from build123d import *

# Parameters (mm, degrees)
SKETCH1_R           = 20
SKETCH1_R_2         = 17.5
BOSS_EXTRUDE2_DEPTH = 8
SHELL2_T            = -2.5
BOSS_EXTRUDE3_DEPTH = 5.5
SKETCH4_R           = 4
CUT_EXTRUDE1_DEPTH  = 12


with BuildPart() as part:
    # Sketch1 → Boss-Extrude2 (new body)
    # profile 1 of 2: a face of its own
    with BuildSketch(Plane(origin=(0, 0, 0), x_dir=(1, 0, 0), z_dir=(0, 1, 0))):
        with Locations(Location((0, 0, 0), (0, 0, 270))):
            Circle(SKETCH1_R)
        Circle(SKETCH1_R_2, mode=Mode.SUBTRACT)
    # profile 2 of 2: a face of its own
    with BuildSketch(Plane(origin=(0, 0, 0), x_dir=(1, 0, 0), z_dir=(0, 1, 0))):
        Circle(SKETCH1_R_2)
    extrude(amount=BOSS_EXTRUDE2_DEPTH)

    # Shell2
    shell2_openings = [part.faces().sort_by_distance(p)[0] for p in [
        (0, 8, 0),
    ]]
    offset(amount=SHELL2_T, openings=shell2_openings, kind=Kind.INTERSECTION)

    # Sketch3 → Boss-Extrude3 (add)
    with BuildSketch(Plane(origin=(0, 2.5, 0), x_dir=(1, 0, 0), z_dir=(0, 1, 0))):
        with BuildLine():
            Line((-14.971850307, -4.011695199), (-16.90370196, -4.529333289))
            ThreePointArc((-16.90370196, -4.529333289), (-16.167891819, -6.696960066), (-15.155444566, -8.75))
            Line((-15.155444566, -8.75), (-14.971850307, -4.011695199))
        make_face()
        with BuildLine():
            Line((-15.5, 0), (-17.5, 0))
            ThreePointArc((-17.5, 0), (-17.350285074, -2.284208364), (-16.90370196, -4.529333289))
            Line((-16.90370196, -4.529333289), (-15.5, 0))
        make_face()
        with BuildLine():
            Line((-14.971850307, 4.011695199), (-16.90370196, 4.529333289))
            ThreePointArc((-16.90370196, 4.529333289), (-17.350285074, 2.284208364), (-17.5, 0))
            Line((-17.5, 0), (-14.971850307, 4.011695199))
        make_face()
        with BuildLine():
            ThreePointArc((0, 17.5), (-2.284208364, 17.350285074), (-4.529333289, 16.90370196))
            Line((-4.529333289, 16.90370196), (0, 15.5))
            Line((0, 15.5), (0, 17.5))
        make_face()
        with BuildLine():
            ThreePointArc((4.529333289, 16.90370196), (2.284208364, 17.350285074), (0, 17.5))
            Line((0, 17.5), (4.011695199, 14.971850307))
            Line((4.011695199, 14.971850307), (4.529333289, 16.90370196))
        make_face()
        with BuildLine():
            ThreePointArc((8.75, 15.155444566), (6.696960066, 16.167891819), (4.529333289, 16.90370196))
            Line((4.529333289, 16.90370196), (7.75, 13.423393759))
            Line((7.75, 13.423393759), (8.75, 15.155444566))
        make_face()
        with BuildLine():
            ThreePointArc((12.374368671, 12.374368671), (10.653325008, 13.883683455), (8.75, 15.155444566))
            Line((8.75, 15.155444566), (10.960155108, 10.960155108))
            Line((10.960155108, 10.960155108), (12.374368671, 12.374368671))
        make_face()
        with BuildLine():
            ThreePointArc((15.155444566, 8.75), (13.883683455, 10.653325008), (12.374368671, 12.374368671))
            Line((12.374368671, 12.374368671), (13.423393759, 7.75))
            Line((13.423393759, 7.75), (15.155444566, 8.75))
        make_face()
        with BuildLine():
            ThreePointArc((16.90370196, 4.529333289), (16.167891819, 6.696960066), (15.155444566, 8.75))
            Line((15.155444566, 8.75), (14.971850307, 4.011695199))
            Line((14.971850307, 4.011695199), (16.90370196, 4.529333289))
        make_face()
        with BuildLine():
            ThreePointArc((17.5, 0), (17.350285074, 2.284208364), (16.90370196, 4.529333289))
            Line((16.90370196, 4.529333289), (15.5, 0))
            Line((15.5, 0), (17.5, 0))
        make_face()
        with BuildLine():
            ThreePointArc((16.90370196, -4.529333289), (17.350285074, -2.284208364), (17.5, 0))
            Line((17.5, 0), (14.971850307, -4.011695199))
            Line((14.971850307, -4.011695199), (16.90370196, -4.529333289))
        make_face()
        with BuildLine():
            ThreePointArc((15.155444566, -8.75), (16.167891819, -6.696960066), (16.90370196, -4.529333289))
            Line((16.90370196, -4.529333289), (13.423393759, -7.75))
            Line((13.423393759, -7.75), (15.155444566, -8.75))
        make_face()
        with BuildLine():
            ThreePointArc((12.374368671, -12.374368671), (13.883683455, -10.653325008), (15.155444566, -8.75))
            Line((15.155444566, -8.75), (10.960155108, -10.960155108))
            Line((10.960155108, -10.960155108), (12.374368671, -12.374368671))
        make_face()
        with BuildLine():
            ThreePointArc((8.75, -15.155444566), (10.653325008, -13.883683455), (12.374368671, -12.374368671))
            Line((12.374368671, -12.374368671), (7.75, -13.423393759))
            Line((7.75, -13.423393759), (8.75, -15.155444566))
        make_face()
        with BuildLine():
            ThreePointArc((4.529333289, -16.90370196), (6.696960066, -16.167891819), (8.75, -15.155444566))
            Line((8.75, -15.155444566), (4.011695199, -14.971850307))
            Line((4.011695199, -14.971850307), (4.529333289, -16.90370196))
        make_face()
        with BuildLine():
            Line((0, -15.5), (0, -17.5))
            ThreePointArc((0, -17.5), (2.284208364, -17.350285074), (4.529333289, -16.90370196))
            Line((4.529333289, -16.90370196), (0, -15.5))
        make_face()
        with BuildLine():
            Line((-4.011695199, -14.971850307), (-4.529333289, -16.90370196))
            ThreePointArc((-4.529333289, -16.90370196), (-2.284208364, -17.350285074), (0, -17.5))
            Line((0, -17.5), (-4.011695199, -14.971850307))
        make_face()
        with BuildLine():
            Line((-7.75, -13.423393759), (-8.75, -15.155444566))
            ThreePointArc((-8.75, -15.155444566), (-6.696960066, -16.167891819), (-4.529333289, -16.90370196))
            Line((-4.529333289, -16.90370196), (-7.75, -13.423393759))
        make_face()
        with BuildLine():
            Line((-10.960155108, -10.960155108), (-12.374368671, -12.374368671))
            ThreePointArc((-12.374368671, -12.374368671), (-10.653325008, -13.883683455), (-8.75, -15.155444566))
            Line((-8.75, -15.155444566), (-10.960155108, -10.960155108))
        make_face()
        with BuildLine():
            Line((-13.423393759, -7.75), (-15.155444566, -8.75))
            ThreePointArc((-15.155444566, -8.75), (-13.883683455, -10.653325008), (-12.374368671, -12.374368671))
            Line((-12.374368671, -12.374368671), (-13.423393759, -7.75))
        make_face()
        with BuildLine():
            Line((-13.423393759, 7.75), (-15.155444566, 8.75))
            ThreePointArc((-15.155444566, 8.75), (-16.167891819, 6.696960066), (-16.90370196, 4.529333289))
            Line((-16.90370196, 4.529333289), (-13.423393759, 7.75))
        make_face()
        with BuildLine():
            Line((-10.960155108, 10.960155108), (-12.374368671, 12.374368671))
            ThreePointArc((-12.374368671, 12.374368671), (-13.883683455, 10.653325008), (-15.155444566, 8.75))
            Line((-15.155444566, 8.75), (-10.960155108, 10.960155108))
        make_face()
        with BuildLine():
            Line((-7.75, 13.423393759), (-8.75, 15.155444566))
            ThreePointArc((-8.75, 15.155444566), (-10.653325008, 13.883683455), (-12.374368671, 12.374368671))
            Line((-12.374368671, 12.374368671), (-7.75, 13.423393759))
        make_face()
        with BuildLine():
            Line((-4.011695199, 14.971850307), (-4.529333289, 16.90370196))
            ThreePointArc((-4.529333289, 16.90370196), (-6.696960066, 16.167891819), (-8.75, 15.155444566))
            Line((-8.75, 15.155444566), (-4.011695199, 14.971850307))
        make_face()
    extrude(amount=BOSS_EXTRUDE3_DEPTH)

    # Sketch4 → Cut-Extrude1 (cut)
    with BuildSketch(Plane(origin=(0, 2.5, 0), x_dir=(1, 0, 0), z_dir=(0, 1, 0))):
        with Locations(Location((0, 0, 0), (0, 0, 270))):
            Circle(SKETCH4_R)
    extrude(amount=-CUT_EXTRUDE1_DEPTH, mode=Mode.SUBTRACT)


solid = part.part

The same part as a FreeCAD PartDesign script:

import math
import FreeCAD as App
import Part
import Sketcher
from FreeCAD import Vector


def faces_at(feature, points):
    """Names of the faces that lie closest to the given points."""
    faces = feature.Shape.Faces
    near = lambda p: min(range(len(faces)), key=lambda i: faces[i].distToShape(Part.Vertex(*p))[0])
    return sorted({f"Face{near(p) + 1}" for p in points})

doc = App.newDocument("Part")
body = doc.addObject("PartDesign::Body", "Body")

sketch1 = body.newObject("Sketcher::SketchObject", "Sketch")
sketch1.AttachmentSupport = (doc.getObject("XZ_Plane"), [""])
sketch1.MapMode = "FlatFace"
sketch1.addGeometry(Part.Circle(Vector(0, 0, 0), Vector(0, 0, 1), 20), False)
sketch1.addConstraint([
    Sketcher.Constraint("Coincident", 0, 3, -1, 1),
    Sketcher.Constraint("Diameter", 0, 40.0),
])
pad1 = body.newObject("PartDesign::Pad", "Pad")
pad1.Profile = sketch1
pad1.Length = 8
pad1.Reversed = True
doc.recompute()

thickness = body.newObject("PartDesign::Thickness", "Thickness")
thickness.Base = (pad1, faces_at(pad1, [(0, 8, 0)]))
thickness.Value = 2.5
thickness.Reversed = True
thickness.Join = "Intersection"

sketch2 = body.newObject("Sketcher::SketchObject", "Sketch001")
sketch2.AttachmentSupport = (doc.getObject("XZ_Plane"), [""])
sketch2.MapMode = "FlatFace"
sketch2.AttachmentOffset = App.Placement(Vector(0, 0, -2.5), App.Rotation())
sketch2.addGeometry([
    Part.LineSegment(Vector(-15, 4, 0), Vector(-16.9, 4.5, 0)),
    Part.ArcOfCircle(Part.Circle(Vector(0, 0, 0), Vector(0, 0, 1), 17.5), math.radians(150), math.radians(165)),
    Part.LineSegment(Vector(-15.2, 8.8, 0), Vector(-15, 4, 0)),
    Part.LineSegment(Vector(-15.5, 0, 0), Vector(-17.5, 0, 0)),
    Part.ArcOfCircle(Part.Circle(Vector(0, 0, 0), Vector(0, 0, 1), 17.5), math.radians(165), math.radians(180)),
    Part.LineSegment(Vector(-16.9, 4.5, 0), Vector(-15.5, 0, 0)),
    Part.LineSegment(Vector(-15, -4, 0), Vector(-16.9, -4.5, 0)),
    Part.ArcOfCircle(Part.Circle(Vector(0, 0, 0), Vector(0, 0, 1), 17.5), math.radians(180), math.radians(195)),
    Part.LineSegment(Vector(-17.5, 0, 0), Vector(-15, -4, 0)),
    Part.ArcOfCircle(Part.Circle(Vector(0, 0, 0), Vector(0, 0, 1), 17.5), math.radians(-105), math.radians(-90)),
    Part.LineSegment(Vector(-4.5, -16.9, 0), Vector(0, -15.5, 0)),
    Part.LineSegment(Vector(0, -15.5, 0), Vector(0, -17.5, 0)),
    Part.ArcOfCircle(Part.Circle(Vector(0, 0, 0), Vector(0, 0, 1), 17.5), math.radians(-90), math.radians(-75)),
    Part.LineSegment(Vector(0, -17.5, 0), Vector(4, -15, 0)),
    Part.LineSegment(Vector(4, -15, 0), Vector(4.5, -16.9, 0)),
    Part.ArcOfCircle(Part.Circle(Vector(0, 0, 0), Vector(0, 0, 1), 17.5), math.radians(-75), math.radians(-60)),
    Part.LineSegment(Vector(4.5, -16.9, 0), Vector(7.8, -13.4, 0)),
    Part.LineSegment(Vector(7.8, -13.4, 0), Vector(8.8, -15.2, 0)),
    Part.ArcOfCircle(Part.Circle(Vector(0, 0, 0), Vector(0, 0, 1), 17.5), math.radians(-60), math.radians(-45)),
    Part.LineSegment(Vector(8.8, -15.2, 0), Vector(11, -11, 0)),
    Part.LineSegment(Vector(11, -11, 0), Vector(12.4, -12.4, 0)),
    Part.ArcOfCircle(Part.Circle(Vector(0, 0, 0), Vector(0, 0, 1), 17.5), math.radians(-45), math.radians(-30)),
    Part.LineSegment(Vector(12.4, -12.4, 0), Vector(13.4, -7.8, 0)),
    Part.LineSegment(Vector(13.4, -7.8, 0), Vector(15.2, -8.8, 0)),
    Part.ArcOfCircle(Part.Circle(Vector(0, 0, 0), Vector(0, 0, 1), 17.5), math.radians(-30), math.radians(-15)),
    Part.LineSegment(Vector(15.2, -8.8, 0), Vector(15, -4, 0)),
    Part.LineSegment(Vector(15, -4, 0), Vector(16.9, -4.5, 0)),
    Part.ArcOfCircle(Part.Circle(Vector(0, 0, 0), Vector(0, 0, 1), 17.5), math.radians(-15), math.radians(0)),
    Part.LineSegment(Vector(16.9, -4.5, 0), Vector(15.5, 0, 0)),
    Part.LineSegment(Vector(15.5, 0, 0), Vector(17.5, 0, 0)),
    Part.ArcOfCircle(Part.Circle(Vector(0, 0, 0), Vector(0, 0, 1), 17.5), math.radians(0), math.radians(15)),
    Part.LineSegment(Vector(17.5, 0, 0), Vector(15, 4, 0)),
    Part.LineSegment(Vector(15, 4, 0), Vector(16.9, 4.5, 0)),
    Part.ArcOfCircle(Part.Circle(Vector(0, 0, 0), Vector(0, 0, 1), 17.5), math.radians(15), math.radians(30)),
    Part.LineSegment(Vector(16.9, 4.5, 0), Vector(13.4, 7.8, 0)),
    Part.LineSegment(Vector(13.4, 7.8, 0), Vector(15.2, 8.8, 0)),
    Part.ArcOfCircle(Part.Circle(Vector(0, 0, 0), Vector(0, 0, 1), 17.5), math.radians(30), math.radians(45)),
    Part.LineSegment(Vector(15.2, 8.8, 0), Vector(11, 11, 0)),
    Part.LineSegment(Vector(11, 11, 0), Vector(12.4, 12.4, 0)),
    Part.ArcOfCircle(Part.Circle(Vector(0, 0, 0), Vector(0, 0, 1), 17.5), math.radians(45), math.radians(60)),
    Part.LineSegment(Vector(12.4, 12.4, 0), Vector(7.8, 13.4, 0)),
    Part.LineSegment(Vector(7.8, 13.4, 0), Vector(8.8, 15.2, 0)),
    Part.ArcOfCircle(Part.Circle(Vector(0, 0, 0), Vector(0, 0, 1), 17.5), math.radians(60), math.radians(75)),
    Part.LineSegment(Vector(8.8, 15.2, 0), Vector(4, 15, 0)),
    Part.LineSegment(Vector(4, 15, 0), Vector(4.5, 16.9, 0)),
    Part.LineSegment(Vector(0, 15.5, 0), Vector(0, 17.5, 0)),
    Part.ArcOfCircle(Part.Circle(Vector(0, 0, 0), Vector(0, 0, 1), 17.5), math.radians(75), math.radians(90)),
    Part.LineSegment(Vector(4.5, 16.9, 0), Vector(0, 15.5, 0)),
    Part.LineSegment(Vector(-4, 15, 0), Vector(-4.5, 16.9, 0)),
    Part.ArcOfCircle(Part.Circle(Vector(0, 0, 0), Vector(0, 0, 1), 17.5), math.radians(90), math.radians(105)),
    Part.LineSegment(Vector(0, 17.5, 0), Vector(-4, 15, 0)),
    Part.LineSegment(Vector(-7.8, 13.4, 0), Vector(-8.8, 15.2, 0)),
    Part.ArcOfCircle(Part.Circle(Vector(0, 0, 0), Vector(0, 0, 1), 17.5), math.radians(105), math.radians(120)),
    Part.LineSegment(Vector(-4.5, 16.9, 0), Vector(-7.8, 13.4, 0)),
    Part.LineSegment(Vector(-11, 11, 0), Vector(-12.4, 12.4, 0)),
    Part.ArcOfCircle(Part.Circle(Vector(0, 0, 0), Vector(0, 0, 1), 17.5), math.radians(120), math.radians(135)),
    Part.LineSegment(Vector(-8.8, 15.2, 0), Vector(-11, 11, 0)),
    Part.LineSegment(Vector(-13.4, 7.8, 0), Vector(-15.2, 8.8, 0)),
    Part.ArcOfCircle(Part.Circle(Vector(0, 0, 0), Vector(0, 0, 1), 17.5), math.radians(135), math.radians(150)),
    Part.LineSegment(Vector(-12.4, 12.4, 0), Vector(-13.4, 7.8, 0)),
    Part.LineSegment(Vector(-13.4, -7.8, 0), Vector(-15.2, -8.8, 0)),
    Part.ArcOfCircle(Part.Circle(Vector(0, 0, 0), Vector(0, 0, 1), 17.5), math.radians(-165), math.radians(-150)),
    Part.LineSegment(Vector(-16.9, -4.5, 0), Vector(-13.4, -7.8, 0)),
    Part.LineSegment(Vector(-11, -11, 0), Vector(-12.4, -12.4, 0)),
    Part.ArcOfCircle(Part.Circle(Vector(0, 0, 0), Vector(0, 0, 1), 17.5), math.radians(-150), math.radians(-135)),
    Part.LineSegment(Vector(-15.2, -8.8, 0), Vector(-11, -11, 0)),
    Part.LineSegment(Vector(-7.8, -13.4, 0), Vector(-8.8, -15.2, 0)),
    Part.ArcOfCircle(Part.Circle(Vector(0, 0, 0), Vector(0, 0, 1), 17.5), math.radians(-135), math.radians(-120)),
    Part.LineSegment(Vector(-12.4, -12.4, 0), Vector(-7.8, -13.4, 0)),
    Part.LineSegment(Vector(-4, -15, 0), Vector(-4.5, -16.9, 0)),
    Part.ArcOfCircle(Part.Circle(Vector(0, 0, 0), Vector(0, 0, 1), 17.5), math.radians(-120), math.radians(-105)),
    Part.LineSegment(Vector(-8.8, -15.2, 0), Vector(-4, -15, 0)),
], False)
sketch2.addConstraint([
    Sketcher.Constraint("Coincident", 0, 2, 1, 2),
    Sketcher.Constraint("Coincident", 1, 1, 2, 1),
    Sketcher.Constraint("Coincident", 2, 2, 0, 1),
    Sketcher.Constraint("Coincident", 3, 2, 4, 2),
    Sketcher.Constraint("Coincident", 4, 1, 5, 1),
    Sketcher.Constraint("Coincident", 5, 2, 3, 1),
    Sketcher.Constraint("Coincident", 6, 2, 7, 2),
    Sketcher.Constraint("Coincident", 7, 1, 8, 1),
    Sketcher.Constraint("Coincident", 8, 2, 6, 1),
    Sketcher.Constraint("Coincident", 9, 1, 10, 1),
    Sketcher.Constraint("Coincident", 10, 2, 11, 1),
    Sketcher.Constraint("Coincident", 11, 2, 9, 2),
    Sketcher.Constraint("Coincident", 12, 1, 13, 1),
    Sketcher.Constraint("Coincident", 13, 2, 14, 1),
    Sketcher.Constraint("Coincident", 14, 2, 12, 2),
    Sketcher.Constraint("Coincident", 15, 1, 16, 1),
    Sketcher.Constraint("Coincident", 16, 2, 17, 1),
    Sketcher.Constraint("Coincident", 17, 2, 15, 2),
    Sketcher.Constraint("Coincident", 18, 1, 19, 1),
    Sketcher.Constraint("Coincident", 19, 2, 20, 1),
    Sketcher.Constraint("Coincident", 20, 2, 18, 2),
    Sketcher.Constraint("Coincident", 21, 1, 22, 1),
    Sketcher.Constraint("Coincident", 22, 2, 23, 1),
    Sketcher.Constraint("Coincident", 23, 2, 21, 2),
    Sketcher.Constraint("Coincident", 24, 1, 25, 1),
    Sketcher.Constraint("Coincident", 25, 2, 26, 1),
    Sketcher.Constraint("Coincident", 26, 2, 24, 2),
    Sketcher.Constraint("Coincident", 27, 1, 28, 1),
    Sketcher.Constraint("Coincident", 28, 2, 29, 1),
    Sketcher.Constraint("Coincident", 29, 2, 27, 2),
    Sketcher.Constraint("Coincident", 30, 1, 31, 1),
    Sketcher.Constraint("Coincident", 31, 2, 32, 1),
    Sketcher.Constraint("Coincident", 32, 2, 30, 2),
    Sketcher.Constraint("Coincident", 33, 1, 34, 1),
    Sketcher.Constraint("Coincident", 34, 2, 35, 1),
    Sketcher.Constraint("Coincident", 35, 2, 33, 2),
    Sketcher.Constraint("Coincident", 36, 1, 37, 1),
    Sketcher.Constraint("Coincident", 37, 2, 38, 1),
    Sketcher.Constraint("Coincident", 38, 2, 36, 2),
    Sketcher.Constraint("Coincident", 39, 1, 40, 1),
    Sketcher.Constraint("Coincident", 40, 2, 41, 1),
    Sketcher.Constraint("Coincident", 41, 2, 39, 2),
    Sketcher.Constraint("Coincident", 42, 1, 43, 1),
    Sketcher.Constraint("Coincident", 43, 2, 44, 1),
    Sketcher.Constraint("Coincident", 44, 2, 42, 2),
    Sketcher.Constraint("Coincident", 45, 2, 46, 2),
    Sketcher.Constraint("Coincident", 46, 1, 47, 1),
    Sketcher.Constraint("Coincident", 47, 2, 45, 1),
    Sketcher.Constraint("Coincident", 48, 2, 49, 2),
    Sketcher.Constraint("Coincident", 49, 1, 50, 1),
    Sketcher.Constraint("Coincident", 50, 2, 48, 1),
    Sketcher.Constraint("Coincident", 51, 2, 52, 2),
    Sketcher.Constraint("Coincident", 52, 1, 53, 1),
    Sketcher.Constraint("Coincident", 53, 2, 51, 1),
    Sketcher.Constraint("Coincident", 54, 2, 55, 2),
    Sketcher.Constraint("Coincident", 55, 1, 56, 1),
    Sketcher.Constraint("Coincident", 56, 2, 54, 1),
    Sketcher.Constraint("Coincident", 57, 2, 58, 2),
    Sketcher.Constraint("Coincident", 58, 1, 59, 1),
    Sketcher.Constraint("Coincident", 59, 2, 57, 1),
    Sketcher.Constraint("Coincident", 60, 2, 61, 2),
    Sketcher.Constraint("Coincident", 61, 1, 62, 1),
    Sketcher.Constraint("Coincident", 62, 2, 60, 1),
    Sketcher.Constraint("Coincident", 63, 2, 64, 2),
    Sketcher.Constraint("Coincident", 64, 1, 65, 1),
    Sketcher.Constraint("Coincident", 65, 2, 63, 1),
    Sketcher.Constraint("Coincident", 66, 2, 67, 2),
    Sketcher.Constraint("Coincident", 67, 1, 68, 1),
    Sketcher.Constraint("Coincident", 68, 2, 66, 1),
    Sketcher.Constraint("Coincident", 69, 2, 70, 2),
    Sketcher.Constraint("Coincident", 70, 1, 71, 1),
    Sketcher.Constraint("Coincident", 71, 2, 69, 1),
    Sketcher.Constraint("Horizontal", 3),
    Sketcher.Constraint("Vertical", 11),
    Sketcher.Constraint("Horizontal", 29),
    Sketcher.Constraint("Vertical", 45),
    Sketcher.Constraint("Coincident", 1, 3, -1, 1),
    Sketcher.Constraint("Coincident", 4, 3, -1, 1),
    Sketcher.Constraint("Coincident", 7, 3, -1, 1),
    Sketcher.Constraint("Coincident", 9, 3, -1, 1),
    Sketcher.Constraint("Coincident", 12, 3, -1, 1),
    Sketcher.Constraint("Coincident", 15, 3, -1, 1),
    Sketcher.Constraint("Coincident", 18, 3, -1, 1),
    Sketcher.Constraint("Coincident", 21, 3, -1, 1),
    Sketcher.Constraint("Coincident", 24, 3, -1, 1),
    Sketcher.Constraint("Coincident", 27, 3, -1, 1),
    Sketcher.Constraint("Coincident", 30, 3, -1, 1),
    Sketcher.Constraint("Coincident", 33, 3, -1, 1),
    Sketcher.Constraint("Coincident", 36, 3, -1, 1),
    Sketcher.Constraint("Coincident", 39, 3, -1, 1),
    Sketcher.Constraint("Coincident", 42, 3, -1, 1),
    Sketcher.Constraint("Coincident", 46, 3, -1, 1),
    Sketcher.Constraint("Coincident", 49, 3, -1, 1),
    Sketcher.Constraint("Coincident", 52, 3, -1, 1),
    Sketcher.Constraint("Coincident", 55, 3, -1, 1),
    Sketcher.Constraint("Coincident", 58, 3, -1, 1),
    Sketcher.Constraint("Coincident", 61, 3, -1, 1),
    Sketcher.Constraint("Coincident", 64, 3, -1, 1),
    Sketcher.Constraint("Coincident", 67, 3, -1, 1),
    Sketcher.Constraint("Coincident", 70, 3, -1, 1),
    Sketcher.Constraint("Coincident", 4, 1, 0, 2),
    Sketcher.Constraint("Coincident", 7, 1, 3, 2),
    Sketcher.Constraint("Coincident", 12, 1, 11, 2),
    Sketcher.Constraint("Coincident", 15, 1, 14, 2),
    Sketcher.Constraint("Coincident", 18, 1, 17, 2),
    Sketcher.Constraint("Coincident", 21, 1, 20, 2),
    Sketcher.Constraint("Coincident", 24, 1, 23, 2),
    Sketcher.Constraint("Coincident", 27, 1, 26, 2),
    Sketcher.Constraint("Coincident", 30, 1, 29, 2),
    Sketcher.Constraint("Coincident", 33, 1, 32, 2),
    Sketcher.Constraint("Coincident", 36, 1, 35, 2),
    Sketcher.Constraint("Coincident", 39, 1, 38, 2),
    Sketcher.Constraint("Coincident", 42, 1, 41, 2),
    Sketcher.Constraint("Coincident", 46, 1, 44, 2),
    Sketcher.Constraint("Coincident", 49, 1, 45, 2),
    Sketcher.Constraint("Coincident", 52, 1, 48, 2),
    Sketcher.Constraint("Coincident", 55, 1, 51, 2),
    Sketcher.Constraint("Coincident", 57, 2, 1, 1),
    Sketcher.Constraint("Coincident", 58, 1, 54, 2),
    Sketcher.Constraint("Coincident", 61, 1, 6, 2),
    Sketcher.Constraint("Coincident", 64, 1, 60, 2),
    Sketcher.Constraint("Coincident", 67, 1, 63, 2),
    Sketcher.Constraint("Coincident", 69, 2, 9, 1),
    Sketcher.Constraint("Symmetric", 2, 2, 25, 2, -1, 1),
    Sketcher.Constraint("Symmetric", 5, 2, 28, 2, -1, 1),
    Sketcher.Constraint("Symmetric", 8, 2, 31, 2, -1, 1),
    Sketcher.Constraint("Symmetric", 10, 2, 47, 2, -1, 1),
    Sketcher.Constraint("Symmetric", 13, 2, 50, 2, -1, 1),
    Sketcher.Constraint("Symmetric", 16, 2, 53, 2, -1, 1),
    Sketcher.Constraint("Symmetric", 19, 2, 56, 2, -1, 1),
    Sketcher.Constraint("Symmetric", 22, 2, 59, 2, -1, 1),
    Sketcher.Constraint("Symmetric", 34, 2, 62, 2, -1, 1),
    Sketcher.Constraint("Symmetric", 37, 2, 65, 2, -1, 1),
    Sketcher.Constraint("Symmetric", 40, 2, 68, 2, -1, 1),
    Sketcher.Constraint("Symmetric", 43, 2, 71, 2, -1, 1),
    Sketcher.Constraint("Symmetric", 8, 2, 25, 2, -2),
    Sketcher.Constraint("Symmetric", 43, 2, 50, 2, -2),
    Sketcher.Constraint("Symmetric", 40, 2, 53, 2, -2),
    Sketcher.Constraint("Symmetric", 37, 2, 56, 2, -2),
    Sketcher.Constraint("Symmetric", 34, 2, 59, 2, -2),
    Sketcher.Constraint("PointOnObject", 3, 2, -1),
    Sketcher.Constraint("PointOnObject", 10, 2, -2),
    Sketcher.Constraint("Perpendicular", 5, 10),
    Sketcher.Constraint("Perpendicular", 8, 13),
    Sketcher.Constraint("Perpendicular", 6, 14),
    Sketcher.Constraint("Parallel", 2, 25),
    Sketcher.Constraint("Parallel", 0, 26),
    Sketcher.Constraint("Perpendicular", 14, 32),
    Sketcher.Constraint("Perpendicular", 16, 34),
    Sketcher.Constraint("Perpendicular", 17, 35),
    Sketcher.Constraint("Perpendicular", 19, 37),
    Sketcher.Constraint("Perpendicular", 20, 38),
    Sketcher.Constraint("Perpendicular", 22, 40),
    Sketcher.Constraint("Perpendicular", 23, 41),
    Sketcher.Constraint("Perpendicular", 25, 43),
    Sketcher.Constraint("Perpendicular", 26, 44),
    Sketcher.Constraint("Perpendicular", 28, 47),
    Sketcher.Constraint("Perpendicular", 32, 48),
    Sketcher.Constraint("Perpendicular", 35, 51),
    Sketcher.Constraint("Perpendicular", 38, 54),
    Sketcher.Constraint("Perpendicular", 51, 60),
    Sketcher.Constraint("Perpendicular", 54, 63),
    Sketcher.Constraint("Perpendicular", 57, 66),
    Sketcher.Constraint("Parallel", 43, 71),
    Sketcher.Constraint("Horizontal", 9, 1, 14, 2),
    Sketcher.Constraint("Horizontal", 1, 1, 35, 2),
    Sketcher.Constraint("Horizontal", 39, 1, 54, 2),
    Sketcher.Constraint("Equal", 2, 5),
    Sketcher.Constraint("Equal", 5, 8),
    Sketcher.Constraint("Equal", 13, 16),
    Sketcher.Constraint("Equal", 14, 17),
    Sketcher.Constraint("Equal", 16, 19),
    Sketcher.Constraint("Equal", 17, 20),
    Sketcher.Constraint("Equal", 19, 22),
    Sketcher.Constraint("Radius", 1, 17.5),
    Sketcher.Constraint("DistanceX", 3, 2, 3, 1, 2.0),
])
pad2 = body.newObject("PartDesign::Pad", "Pad001")
pad2.Profile = sketch2
pad2.Length = 5.5
pad2.Reversed = True

sketch3 = body.newObject("Sketcher::SketchObject", "Sketch002")
sketch3.AttachmentSupport = (doc.getObject("XZ_Plane"), [""])
sketch3.MapMode = "FlatFace"
sketch3.AttachmentOffset = App.Placement(Vector(0, 0, -2.5), App.Rotation())
sketch3.addGeometry(Part.Circle(Vector(0, 0, 0), Vector(0, 0, 1), 4), False)
sketch3.addConstraint([
    Sketcher.Constraint("Coincident", 0, 3, -1, 1),
    Sketcher.Constraint("Diameter", 0, 8.0),
])
pocket1 = body.newObject("PartDesign::Pocket", "Pocket")
pocket1.Profile = sketch3
pocket1.Length = 12
pocket1.Reversed = True

doc.recompute()
